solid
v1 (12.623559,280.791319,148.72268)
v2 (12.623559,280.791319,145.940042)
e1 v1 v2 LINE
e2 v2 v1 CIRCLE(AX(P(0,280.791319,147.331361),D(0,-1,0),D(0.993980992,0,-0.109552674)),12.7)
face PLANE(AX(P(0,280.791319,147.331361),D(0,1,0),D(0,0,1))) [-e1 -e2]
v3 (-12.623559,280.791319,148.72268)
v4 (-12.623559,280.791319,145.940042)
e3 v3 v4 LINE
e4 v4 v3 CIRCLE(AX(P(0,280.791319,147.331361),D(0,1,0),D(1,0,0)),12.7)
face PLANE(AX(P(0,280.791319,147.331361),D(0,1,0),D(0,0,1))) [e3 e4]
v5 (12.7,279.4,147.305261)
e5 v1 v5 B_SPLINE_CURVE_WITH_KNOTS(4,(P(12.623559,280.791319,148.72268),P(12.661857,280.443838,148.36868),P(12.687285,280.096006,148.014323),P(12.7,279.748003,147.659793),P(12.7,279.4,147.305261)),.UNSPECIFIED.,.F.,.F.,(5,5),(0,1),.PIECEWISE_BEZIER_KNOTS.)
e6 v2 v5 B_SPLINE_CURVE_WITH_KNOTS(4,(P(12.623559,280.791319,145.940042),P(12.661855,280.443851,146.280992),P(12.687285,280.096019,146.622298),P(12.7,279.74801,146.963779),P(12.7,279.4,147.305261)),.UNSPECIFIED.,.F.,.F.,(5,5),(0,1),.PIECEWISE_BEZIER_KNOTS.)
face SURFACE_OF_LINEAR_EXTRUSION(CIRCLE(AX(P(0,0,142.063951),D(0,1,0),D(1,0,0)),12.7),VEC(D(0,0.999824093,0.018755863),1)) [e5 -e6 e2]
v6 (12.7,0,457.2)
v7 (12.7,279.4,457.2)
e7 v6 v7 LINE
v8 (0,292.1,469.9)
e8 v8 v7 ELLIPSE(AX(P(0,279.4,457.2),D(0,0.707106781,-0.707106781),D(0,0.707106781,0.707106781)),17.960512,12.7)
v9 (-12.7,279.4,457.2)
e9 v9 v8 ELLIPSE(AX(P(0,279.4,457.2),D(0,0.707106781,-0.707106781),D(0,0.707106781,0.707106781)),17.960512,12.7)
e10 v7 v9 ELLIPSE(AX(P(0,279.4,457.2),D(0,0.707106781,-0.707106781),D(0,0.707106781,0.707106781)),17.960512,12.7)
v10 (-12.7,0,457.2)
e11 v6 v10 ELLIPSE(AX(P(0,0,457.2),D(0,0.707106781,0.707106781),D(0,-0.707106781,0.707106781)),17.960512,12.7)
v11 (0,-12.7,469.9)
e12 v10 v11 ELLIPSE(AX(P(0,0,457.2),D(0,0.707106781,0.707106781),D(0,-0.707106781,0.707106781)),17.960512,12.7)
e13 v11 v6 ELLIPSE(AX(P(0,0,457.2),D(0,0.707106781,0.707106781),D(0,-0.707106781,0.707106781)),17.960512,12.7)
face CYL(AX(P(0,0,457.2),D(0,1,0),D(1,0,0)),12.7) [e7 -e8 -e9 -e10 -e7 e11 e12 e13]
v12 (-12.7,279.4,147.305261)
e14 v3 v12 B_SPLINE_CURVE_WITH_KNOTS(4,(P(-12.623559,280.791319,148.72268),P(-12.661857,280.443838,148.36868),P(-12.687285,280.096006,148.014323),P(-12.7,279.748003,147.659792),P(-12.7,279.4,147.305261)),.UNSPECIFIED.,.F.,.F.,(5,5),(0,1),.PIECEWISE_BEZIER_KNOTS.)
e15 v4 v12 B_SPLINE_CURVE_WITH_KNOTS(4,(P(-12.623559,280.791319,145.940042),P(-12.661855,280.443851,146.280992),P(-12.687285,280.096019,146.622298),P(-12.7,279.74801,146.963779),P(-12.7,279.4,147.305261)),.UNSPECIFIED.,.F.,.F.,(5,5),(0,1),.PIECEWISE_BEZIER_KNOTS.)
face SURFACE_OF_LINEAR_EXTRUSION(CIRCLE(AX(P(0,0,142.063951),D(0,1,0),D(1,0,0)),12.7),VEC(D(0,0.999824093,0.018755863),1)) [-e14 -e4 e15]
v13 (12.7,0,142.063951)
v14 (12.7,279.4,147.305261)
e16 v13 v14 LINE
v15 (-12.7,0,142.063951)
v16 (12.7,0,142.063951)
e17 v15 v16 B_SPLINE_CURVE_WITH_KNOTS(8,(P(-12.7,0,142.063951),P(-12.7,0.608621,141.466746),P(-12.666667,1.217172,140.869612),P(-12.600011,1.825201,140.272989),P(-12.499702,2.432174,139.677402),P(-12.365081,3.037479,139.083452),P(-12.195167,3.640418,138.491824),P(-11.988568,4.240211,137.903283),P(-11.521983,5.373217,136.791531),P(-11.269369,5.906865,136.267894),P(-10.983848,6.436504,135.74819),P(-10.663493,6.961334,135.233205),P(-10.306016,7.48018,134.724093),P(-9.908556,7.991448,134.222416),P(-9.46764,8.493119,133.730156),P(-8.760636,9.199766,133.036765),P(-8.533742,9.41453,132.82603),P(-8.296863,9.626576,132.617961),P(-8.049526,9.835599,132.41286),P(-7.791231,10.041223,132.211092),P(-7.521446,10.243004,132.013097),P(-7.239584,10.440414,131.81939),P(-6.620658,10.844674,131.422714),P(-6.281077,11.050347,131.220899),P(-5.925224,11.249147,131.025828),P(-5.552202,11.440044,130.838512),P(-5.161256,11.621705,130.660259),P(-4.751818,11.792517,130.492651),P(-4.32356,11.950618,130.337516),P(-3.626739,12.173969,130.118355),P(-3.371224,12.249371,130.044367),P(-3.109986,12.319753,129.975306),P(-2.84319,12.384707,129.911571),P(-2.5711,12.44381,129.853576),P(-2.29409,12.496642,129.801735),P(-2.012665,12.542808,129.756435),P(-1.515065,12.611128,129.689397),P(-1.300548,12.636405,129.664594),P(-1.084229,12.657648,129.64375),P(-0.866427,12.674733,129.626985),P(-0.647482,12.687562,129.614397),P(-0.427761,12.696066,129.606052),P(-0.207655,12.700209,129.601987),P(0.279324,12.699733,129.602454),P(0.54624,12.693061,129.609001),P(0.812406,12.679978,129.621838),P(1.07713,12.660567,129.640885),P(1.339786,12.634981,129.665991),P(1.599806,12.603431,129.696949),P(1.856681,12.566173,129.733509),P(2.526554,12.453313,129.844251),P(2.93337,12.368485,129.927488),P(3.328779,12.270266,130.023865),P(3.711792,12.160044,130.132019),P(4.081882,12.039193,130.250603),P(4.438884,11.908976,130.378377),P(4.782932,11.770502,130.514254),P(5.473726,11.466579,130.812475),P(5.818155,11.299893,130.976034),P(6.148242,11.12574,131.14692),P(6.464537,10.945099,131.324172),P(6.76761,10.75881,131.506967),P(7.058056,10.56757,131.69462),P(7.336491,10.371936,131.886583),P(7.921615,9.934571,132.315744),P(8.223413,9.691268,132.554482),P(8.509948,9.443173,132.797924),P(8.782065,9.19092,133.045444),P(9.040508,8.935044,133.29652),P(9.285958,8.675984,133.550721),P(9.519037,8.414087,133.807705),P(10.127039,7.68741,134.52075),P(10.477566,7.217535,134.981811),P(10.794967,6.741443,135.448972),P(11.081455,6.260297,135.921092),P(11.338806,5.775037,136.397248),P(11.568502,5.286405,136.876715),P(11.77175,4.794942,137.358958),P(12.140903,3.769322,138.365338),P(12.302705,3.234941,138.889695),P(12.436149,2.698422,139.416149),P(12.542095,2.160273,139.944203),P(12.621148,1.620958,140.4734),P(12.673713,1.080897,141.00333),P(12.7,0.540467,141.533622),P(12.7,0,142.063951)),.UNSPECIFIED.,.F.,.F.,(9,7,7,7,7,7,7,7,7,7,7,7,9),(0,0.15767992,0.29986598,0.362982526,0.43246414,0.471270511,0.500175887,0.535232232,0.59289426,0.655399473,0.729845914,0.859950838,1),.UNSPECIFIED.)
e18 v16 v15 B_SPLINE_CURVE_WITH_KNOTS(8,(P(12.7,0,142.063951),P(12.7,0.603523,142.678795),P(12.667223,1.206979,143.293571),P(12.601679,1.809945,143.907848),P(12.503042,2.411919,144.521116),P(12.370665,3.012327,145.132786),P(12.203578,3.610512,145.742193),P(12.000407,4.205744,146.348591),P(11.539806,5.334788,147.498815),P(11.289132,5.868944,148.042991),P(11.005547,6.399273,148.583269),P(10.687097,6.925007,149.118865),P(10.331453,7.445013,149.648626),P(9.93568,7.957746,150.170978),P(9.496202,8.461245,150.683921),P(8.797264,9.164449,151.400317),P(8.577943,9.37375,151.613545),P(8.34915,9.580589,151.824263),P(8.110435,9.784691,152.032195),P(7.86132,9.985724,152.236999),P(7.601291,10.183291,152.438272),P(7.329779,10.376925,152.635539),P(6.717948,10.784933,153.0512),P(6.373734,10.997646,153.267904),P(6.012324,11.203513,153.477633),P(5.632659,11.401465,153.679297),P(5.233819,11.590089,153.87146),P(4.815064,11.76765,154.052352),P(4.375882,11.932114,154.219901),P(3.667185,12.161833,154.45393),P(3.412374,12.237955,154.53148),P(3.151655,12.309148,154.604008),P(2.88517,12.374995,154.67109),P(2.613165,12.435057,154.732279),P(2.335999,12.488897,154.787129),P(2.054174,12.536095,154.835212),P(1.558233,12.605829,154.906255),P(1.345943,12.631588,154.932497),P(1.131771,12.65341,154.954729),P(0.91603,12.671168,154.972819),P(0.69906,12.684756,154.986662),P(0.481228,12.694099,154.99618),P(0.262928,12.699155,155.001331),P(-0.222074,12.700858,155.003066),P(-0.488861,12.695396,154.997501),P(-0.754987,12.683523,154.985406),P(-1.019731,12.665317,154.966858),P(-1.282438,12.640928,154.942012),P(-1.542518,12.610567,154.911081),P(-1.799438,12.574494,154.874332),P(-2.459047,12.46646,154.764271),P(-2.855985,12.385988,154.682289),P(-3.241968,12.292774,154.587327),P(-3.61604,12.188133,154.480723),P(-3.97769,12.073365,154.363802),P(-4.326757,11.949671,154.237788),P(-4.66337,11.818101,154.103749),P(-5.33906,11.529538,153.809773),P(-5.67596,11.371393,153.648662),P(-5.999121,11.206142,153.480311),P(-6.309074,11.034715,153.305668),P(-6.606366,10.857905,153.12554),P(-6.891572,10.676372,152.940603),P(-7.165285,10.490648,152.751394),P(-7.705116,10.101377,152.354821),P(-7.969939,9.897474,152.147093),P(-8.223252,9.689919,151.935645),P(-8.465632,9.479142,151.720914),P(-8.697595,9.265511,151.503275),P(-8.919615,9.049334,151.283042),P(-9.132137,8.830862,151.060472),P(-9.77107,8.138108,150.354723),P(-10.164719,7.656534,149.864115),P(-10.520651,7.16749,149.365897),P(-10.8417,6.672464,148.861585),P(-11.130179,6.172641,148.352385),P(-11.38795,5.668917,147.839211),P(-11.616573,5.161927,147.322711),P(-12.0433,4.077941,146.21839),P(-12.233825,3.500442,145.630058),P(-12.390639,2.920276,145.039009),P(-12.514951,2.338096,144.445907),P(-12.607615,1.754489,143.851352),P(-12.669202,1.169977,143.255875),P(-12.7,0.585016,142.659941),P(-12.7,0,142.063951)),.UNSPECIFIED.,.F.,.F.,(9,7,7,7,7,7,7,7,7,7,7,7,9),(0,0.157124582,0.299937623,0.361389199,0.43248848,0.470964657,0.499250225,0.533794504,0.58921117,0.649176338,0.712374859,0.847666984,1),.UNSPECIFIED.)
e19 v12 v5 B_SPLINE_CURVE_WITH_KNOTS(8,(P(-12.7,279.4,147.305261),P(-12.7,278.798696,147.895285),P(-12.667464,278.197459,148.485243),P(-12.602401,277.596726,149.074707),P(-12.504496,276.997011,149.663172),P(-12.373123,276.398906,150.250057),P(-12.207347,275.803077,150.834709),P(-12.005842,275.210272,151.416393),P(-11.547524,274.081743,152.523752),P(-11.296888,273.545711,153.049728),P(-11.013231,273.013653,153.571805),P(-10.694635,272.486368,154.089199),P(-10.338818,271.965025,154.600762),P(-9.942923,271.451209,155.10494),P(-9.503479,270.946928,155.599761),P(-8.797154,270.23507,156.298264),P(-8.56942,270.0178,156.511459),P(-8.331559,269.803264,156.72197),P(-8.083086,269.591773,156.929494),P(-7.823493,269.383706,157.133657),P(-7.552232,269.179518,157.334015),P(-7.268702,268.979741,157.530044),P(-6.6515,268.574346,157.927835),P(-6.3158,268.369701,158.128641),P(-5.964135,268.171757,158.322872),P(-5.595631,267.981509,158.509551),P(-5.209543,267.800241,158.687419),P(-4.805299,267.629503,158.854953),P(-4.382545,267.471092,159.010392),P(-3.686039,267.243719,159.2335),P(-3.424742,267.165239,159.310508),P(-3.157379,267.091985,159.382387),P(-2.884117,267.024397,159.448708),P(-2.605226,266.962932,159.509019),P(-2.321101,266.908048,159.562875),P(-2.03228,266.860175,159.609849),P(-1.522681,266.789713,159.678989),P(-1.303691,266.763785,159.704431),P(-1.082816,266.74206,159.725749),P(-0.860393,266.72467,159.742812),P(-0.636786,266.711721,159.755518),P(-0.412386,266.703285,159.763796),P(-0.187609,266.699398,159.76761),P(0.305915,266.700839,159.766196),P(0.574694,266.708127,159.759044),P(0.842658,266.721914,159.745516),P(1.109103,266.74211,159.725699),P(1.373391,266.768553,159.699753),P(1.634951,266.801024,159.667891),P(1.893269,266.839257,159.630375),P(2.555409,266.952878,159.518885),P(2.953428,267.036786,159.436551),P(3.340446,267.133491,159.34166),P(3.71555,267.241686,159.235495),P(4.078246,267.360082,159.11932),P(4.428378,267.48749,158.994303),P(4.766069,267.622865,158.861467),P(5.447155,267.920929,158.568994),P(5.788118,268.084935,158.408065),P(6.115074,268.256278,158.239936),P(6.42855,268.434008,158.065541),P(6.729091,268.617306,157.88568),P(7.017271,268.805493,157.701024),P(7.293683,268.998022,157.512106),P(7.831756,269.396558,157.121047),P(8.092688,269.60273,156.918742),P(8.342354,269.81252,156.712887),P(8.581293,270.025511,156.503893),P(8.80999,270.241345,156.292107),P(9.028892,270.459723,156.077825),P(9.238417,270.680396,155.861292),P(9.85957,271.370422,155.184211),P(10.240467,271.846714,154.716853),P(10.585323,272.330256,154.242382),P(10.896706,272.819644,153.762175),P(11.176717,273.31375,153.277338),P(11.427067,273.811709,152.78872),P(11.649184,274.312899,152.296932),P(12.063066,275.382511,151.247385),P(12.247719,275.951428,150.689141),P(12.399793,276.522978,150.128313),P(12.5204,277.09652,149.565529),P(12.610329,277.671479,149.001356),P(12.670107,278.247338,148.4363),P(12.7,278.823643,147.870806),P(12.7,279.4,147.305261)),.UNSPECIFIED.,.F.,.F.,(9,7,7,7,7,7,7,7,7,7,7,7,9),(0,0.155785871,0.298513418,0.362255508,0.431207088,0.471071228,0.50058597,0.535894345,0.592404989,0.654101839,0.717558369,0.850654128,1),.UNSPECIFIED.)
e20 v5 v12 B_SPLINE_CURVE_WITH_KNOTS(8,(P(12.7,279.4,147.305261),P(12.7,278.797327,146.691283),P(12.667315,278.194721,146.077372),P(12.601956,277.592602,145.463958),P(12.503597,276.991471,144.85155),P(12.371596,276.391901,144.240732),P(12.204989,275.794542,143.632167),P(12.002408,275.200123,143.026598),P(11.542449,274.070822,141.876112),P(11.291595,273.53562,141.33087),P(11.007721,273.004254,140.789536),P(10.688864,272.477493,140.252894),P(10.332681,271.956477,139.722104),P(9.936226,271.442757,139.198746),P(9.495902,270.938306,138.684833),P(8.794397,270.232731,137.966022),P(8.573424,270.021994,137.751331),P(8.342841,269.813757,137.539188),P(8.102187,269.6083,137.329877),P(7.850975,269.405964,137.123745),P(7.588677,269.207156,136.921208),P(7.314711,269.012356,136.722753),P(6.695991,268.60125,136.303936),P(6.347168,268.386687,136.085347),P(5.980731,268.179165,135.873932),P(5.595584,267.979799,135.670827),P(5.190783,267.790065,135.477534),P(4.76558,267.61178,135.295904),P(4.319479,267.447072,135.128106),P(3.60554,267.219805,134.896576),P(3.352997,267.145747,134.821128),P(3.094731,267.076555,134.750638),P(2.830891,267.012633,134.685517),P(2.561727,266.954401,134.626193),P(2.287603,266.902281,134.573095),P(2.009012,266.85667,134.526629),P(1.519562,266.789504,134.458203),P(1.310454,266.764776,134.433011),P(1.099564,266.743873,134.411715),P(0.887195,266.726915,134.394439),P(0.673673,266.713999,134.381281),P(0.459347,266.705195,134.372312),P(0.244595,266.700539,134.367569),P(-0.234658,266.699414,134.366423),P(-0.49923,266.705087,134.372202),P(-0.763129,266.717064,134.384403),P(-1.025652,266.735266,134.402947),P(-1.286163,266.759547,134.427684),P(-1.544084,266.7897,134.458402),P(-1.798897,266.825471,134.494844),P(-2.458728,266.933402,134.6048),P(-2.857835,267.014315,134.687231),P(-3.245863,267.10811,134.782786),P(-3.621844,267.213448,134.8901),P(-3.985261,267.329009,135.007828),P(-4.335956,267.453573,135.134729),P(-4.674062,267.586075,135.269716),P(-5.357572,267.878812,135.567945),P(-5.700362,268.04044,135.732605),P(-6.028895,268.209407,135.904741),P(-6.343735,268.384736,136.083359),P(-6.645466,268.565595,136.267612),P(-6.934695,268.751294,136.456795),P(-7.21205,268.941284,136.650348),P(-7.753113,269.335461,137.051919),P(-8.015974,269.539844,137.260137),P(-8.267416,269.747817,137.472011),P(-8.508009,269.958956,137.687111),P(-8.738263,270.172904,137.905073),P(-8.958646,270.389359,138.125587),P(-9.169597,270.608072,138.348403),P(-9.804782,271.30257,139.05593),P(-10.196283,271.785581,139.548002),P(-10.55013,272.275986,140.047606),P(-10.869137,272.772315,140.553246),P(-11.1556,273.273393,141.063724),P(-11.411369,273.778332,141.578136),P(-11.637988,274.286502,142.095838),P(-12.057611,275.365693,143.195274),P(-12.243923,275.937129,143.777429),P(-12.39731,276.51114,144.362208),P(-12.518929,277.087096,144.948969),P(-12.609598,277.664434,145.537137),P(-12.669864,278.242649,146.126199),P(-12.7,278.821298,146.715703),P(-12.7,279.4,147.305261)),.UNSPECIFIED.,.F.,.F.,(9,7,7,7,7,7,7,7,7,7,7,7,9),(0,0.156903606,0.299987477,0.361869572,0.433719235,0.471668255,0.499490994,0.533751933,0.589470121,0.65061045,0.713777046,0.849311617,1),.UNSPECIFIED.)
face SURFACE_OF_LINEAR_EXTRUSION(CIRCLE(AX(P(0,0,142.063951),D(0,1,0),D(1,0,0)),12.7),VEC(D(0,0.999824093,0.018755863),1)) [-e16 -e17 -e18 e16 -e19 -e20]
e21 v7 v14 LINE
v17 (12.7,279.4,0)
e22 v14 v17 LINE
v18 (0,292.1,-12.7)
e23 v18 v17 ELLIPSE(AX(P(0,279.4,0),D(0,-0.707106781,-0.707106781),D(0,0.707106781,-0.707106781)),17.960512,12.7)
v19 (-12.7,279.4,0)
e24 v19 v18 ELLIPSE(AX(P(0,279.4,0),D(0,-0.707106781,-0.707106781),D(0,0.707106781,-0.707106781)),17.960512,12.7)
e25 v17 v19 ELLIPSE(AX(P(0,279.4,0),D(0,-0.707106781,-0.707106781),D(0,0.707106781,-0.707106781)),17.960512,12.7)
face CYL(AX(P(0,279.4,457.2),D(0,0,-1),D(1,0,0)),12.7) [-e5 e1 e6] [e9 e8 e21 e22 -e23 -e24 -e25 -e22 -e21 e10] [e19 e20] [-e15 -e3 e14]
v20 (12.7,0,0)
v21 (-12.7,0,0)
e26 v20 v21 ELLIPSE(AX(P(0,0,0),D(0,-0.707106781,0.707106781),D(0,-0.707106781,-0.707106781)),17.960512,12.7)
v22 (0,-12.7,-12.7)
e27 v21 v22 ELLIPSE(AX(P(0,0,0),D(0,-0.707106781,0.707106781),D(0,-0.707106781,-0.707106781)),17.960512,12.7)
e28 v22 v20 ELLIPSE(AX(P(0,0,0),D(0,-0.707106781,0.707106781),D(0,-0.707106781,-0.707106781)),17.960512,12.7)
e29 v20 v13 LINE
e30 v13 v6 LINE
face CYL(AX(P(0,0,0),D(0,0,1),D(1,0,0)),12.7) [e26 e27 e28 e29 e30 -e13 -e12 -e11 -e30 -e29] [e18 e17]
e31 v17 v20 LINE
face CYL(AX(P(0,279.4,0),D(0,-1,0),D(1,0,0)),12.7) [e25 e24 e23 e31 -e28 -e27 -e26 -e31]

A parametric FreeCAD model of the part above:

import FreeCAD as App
import Part
import Sketcher

V = App.Vector
Q = App.Units.Quantity


def add_polygon(sketch, points):
    """Adds a closed chain of lines whose ends are joined by coincident constraints."""
    first, n = sketch.GeometryCount, len(points)
    for a, b in zip(points, points[1:] + points[:1]):
        sketch.addGeometry(Part.LineSegment(App.Vector(*a, 0), App.Vector(*b, 0)), False)
    for i in range(n):
        sketch.addConstraint(Sketcher.Constraint("Coincident", first + i, 2, first + (i + 1) % n, 1))

doc = App.newDocument("Part")
params = doc.addObject("Spreadsheet::Sheet", "Params")
for row, (alias, value) in enumerate([
    ("sketch1_diameter", "1 in"),
    ("sketch2_width", "11 in"),
    ("sketch2_height", "18 in"),
    ("sketch3_diameter", "1 in"),
], start=1):
    params.set(f"A{row}", alias)
    params.set(f"B{row}", "=" + value)
    params.setAlias(f"B{row}", alias)

body = doc.addObject("PartDesign::Body", "Body")

# Sketch on XY plane
sketch1 = body.newObject("Sketcher::SketchObject", "Sketch")
sketch1.AttachmentSupport = (doc.getObject("XY_Plane"), [""])
sketch1.MapMode = "FlatFace"
sketch1.addGeometry(Part.Circle(V(0, 0, 0), V(0, 0, 1), 13), False)
sketch1.addConstraint([
    Sketcher.Constraint("Coincident", 0, 3, -1, 1),
    Sketcher.Constraint("Diameter", 0, Q("1 in")),
])
sketch1.setExpression("Constraints[1]", "Params.sketch1_diameter")

# Sketch on YZ plane
sketch2 = body.newObject("Sketcher::SketchObject", "Sketch001")
sketch2.AttachmentSupport = (doc.getObject("YZ_Plane"), [""])
sketch2.MapMode = "FlatFace"
add_polygon(sketch2, [(0, 0), (0, 457), (279, 457), (279, 0)])  # lines 0-3
sketch2.addConstraint([
    Sketcher.Constraint("Vertical", 0),
    Sketcher.Constraint("Horizontal", 1),
    Sketcher.Constraint("Vertical", 2),
    Sketcher.Constraint("Horizontal", 3),
    Sketcher.Constraint("Coincident", 3, 2, -1, 1),
    Sketcher.Constraint("DistanceX", 1, 1, 1, 2, Q("11 in")),
    Sketcher.Constraint("DistanceY", 0, 1, 0, 2, Q("18 in")),
])
sketch2.setExpression("Constraints[9]", "Params.sketch2_width")
sketch2.setExpression("Constraints[10]", "Params.sketch2_height")
doc.recompute()

additivepipe = body.newObject("PartDesign::AdditivePipe", "AdditivePipe")
additivepipe.Profile = sketch1
additivepipe.Spine = (sketch2, ["Edge1", "Edge2", "Edge3", "Edge4"])
additivepipe.Transition = "Right corner"

# Sketch on XZ plane
sketch3 = body.newObject("Sketcher::SketchObject", "Sketch002")
sketch3.AttachmentSupport = (doc.getObject("XZ_Plane"), [""])
sketch3.MapMode = "FlatFace"
sketch3.addGeometry(Part.Circle(V(0, 142, 0), V(0, 0, 1), 13), False)
sketch3.addConstraint([
    Sketcher.Constraint("PointOnObject", 0, 3, -2),
    Sketcher.Constraint("Diameter", 0, Q("1 in")),
    Sketcher.Constraint("DistanceY", -1, 1, 0, 3, Q("142.063951 mm")),
])
sketch3.setExpression("Constraints[1]", "Params.sketch3_diameter")

# Sketch on an angled plane
sketch4 = body.newObject("Sketcher::SketchObject", "Sketch003")
sketch4.Placement = App.Placement(V(0, -2.664063, 142.013975), App.Rotation(V(0, -0.999824093, -0.018755863), V(0.999999999, 0, 0), V(0, -0.018755863, 0.999824093), "ZXY"))
sketch4.addGeometry(Part.LineSegment(V(-3, 0, 0), V(-284, 0, 0)), False)
sketch4.addConstraint([
    Sketcher.Constraint("Horizontal", 0),
    Sketcher.Constraint("PointOnObject", 0, 1, -1),
    Sketcher.Constraint("DistanceX", 0, 2, 0, 1, Q("280.840721 mm")),
    Sketcher.Constraint("DistanceX", 0, 1, -1, 1, Q("2.664532 mm")),
])
doc.recompute()

additivepipe2 = body.newObject("PartDesign::AdditivePipe", "AdditivePipe001")
additivepipe2.Profile = sketch3
additivepipe2.Spine = (sketch4, ["Edge1"])

doc.recompute()
